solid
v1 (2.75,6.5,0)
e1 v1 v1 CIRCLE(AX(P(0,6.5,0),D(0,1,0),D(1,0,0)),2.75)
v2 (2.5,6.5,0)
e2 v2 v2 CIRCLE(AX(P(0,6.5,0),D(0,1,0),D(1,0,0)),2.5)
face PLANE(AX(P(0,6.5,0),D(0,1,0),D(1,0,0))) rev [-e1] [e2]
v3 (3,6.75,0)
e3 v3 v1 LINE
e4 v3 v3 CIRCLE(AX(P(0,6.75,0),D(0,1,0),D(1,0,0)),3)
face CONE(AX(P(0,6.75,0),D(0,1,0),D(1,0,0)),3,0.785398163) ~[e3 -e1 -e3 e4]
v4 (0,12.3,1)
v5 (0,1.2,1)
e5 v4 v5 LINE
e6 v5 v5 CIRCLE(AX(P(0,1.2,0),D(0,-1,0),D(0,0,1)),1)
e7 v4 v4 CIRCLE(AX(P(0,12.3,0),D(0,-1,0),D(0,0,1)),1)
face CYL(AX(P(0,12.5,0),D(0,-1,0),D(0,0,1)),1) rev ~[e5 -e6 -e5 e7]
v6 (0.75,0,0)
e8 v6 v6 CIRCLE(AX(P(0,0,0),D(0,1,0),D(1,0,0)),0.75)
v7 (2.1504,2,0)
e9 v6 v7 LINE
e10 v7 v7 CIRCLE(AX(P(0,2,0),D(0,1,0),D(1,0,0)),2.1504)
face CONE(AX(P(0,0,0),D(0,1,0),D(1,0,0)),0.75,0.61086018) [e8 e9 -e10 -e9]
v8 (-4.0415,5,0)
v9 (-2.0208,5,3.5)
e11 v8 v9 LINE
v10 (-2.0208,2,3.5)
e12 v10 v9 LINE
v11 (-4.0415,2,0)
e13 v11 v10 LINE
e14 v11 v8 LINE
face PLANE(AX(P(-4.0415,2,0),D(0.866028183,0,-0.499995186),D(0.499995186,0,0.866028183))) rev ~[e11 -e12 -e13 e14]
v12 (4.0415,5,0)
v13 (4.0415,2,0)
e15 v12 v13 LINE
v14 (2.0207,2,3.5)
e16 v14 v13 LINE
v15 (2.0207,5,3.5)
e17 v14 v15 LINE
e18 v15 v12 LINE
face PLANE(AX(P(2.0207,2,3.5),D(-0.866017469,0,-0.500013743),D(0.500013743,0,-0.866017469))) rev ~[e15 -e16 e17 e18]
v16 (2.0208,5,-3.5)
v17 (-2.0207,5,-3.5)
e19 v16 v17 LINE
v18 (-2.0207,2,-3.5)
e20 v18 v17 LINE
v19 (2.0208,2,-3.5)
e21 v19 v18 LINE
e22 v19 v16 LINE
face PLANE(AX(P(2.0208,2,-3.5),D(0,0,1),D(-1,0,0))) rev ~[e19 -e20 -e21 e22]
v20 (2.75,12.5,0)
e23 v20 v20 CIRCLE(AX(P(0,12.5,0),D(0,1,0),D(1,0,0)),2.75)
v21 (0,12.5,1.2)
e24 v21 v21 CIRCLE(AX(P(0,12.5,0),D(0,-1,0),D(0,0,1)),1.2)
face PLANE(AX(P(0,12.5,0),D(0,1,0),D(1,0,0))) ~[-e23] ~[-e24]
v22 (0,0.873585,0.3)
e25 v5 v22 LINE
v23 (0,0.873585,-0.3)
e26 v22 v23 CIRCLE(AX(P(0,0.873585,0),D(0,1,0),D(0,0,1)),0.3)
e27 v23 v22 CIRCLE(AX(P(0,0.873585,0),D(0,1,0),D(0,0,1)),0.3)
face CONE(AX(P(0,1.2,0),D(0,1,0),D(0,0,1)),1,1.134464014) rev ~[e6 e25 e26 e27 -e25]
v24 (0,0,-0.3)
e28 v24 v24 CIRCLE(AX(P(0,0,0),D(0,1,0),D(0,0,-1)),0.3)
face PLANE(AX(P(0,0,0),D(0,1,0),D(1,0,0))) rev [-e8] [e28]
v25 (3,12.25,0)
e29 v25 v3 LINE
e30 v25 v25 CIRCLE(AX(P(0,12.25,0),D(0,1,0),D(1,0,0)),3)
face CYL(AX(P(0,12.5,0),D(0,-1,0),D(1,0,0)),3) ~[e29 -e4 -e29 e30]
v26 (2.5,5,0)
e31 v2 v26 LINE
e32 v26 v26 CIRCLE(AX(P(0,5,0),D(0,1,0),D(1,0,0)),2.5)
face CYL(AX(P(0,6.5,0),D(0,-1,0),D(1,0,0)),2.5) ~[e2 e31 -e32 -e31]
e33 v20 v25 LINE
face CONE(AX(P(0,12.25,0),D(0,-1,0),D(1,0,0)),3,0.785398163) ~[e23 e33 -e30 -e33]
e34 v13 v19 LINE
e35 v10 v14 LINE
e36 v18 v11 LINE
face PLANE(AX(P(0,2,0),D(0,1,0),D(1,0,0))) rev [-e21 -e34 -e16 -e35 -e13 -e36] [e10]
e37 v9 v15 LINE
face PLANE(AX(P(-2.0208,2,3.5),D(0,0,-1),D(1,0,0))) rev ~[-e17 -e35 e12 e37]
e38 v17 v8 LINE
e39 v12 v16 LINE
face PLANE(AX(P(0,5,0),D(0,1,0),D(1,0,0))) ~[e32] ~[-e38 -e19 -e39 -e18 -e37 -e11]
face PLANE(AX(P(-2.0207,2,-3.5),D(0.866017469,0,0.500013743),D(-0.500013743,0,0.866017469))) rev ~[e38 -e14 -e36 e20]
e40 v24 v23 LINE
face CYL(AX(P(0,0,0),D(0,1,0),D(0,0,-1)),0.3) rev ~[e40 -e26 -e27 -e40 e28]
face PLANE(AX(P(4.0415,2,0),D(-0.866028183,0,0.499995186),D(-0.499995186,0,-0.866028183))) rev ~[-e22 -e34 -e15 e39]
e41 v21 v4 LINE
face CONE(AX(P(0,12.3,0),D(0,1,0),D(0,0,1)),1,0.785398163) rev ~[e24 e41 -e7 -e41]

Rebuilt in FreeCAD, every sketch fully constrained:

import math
import FreeCAD as App
import Part
import Sketcher
Q = App.Units.Quantity


def edges_at(feature, points):
    """Names of the edges that pass closest to the given points."""
    edges = feature.Shape.Edges
    near = lambda p: min(range(len(edges)), key=lambda i: edges[i].distToShape(Part.Vertex(*p))[0])
    return sorted({f"Edge{near(p) + 1}" for p in points})

doc = App.newDocument("Part")
body = doc.addObject("PartDesign::Body", "Body")

sketch1 = body.newObject("Sketcher::SketchObject", "Sketch")
sketch1.AttachmentSupport = (doc.getObject("XY_Plane"), [""])
sketch1.MapMode = "FlatFace"
sketch1.addGeometry([
    Part.LineSegment(App.Vector(0, 12.5, 0), App.Vector(0, 0, 0)),
    Part.LineSegment(App.Vector(0, 0, 0), App.Vector(0.75, 0, 0)),
    Part.LineSegment(App.Vector(0.75, 0, 0), App.Vector(2.1504, 2, 0)),
    Part.LineSegment(App.Vector(2.1504, 2, 0), App.Vector(4.0415, 2, 0)),
    Part.LineSegment(App.Vector(4.0415, 2, 0), App.Vector(4.0415, 5, 0)),
    Part.LineSegment(App.Vector(4.0415, 5, 0), App.Vector(2.5, 5, 0)),
    Part.LineSegment(App.Vector(2.5, 5, 0), App.Vector(2.5, 6.5, 0)),
    Part.LineSegment(App.Vector(2.5, 6.5, 0), App.Vector(3, 6.5, 0)),
    Part.LineSegment(App.Vector(3, 6.5, 0), App.Vector(3, 12.5, 0)),
    Part.LineSegment(App.Vector(3, 12.5, 0), App.Vector(0, 12.5, 0)),
], False)
sketch1.addConstraint([
    Sketcher.Constraint("Coincident", 0, 2, 1, 1),
    Sketcher.Constraint("Coincident", 1, 2, 2, 1),
    Sketcher.Constraint("Coincident", 2, 2, 3, 1),
    Sketcher.Constraint("Coincident", 3, 2, 4, 1),
    Sketcher.Constraint("Coincident", 4, 2, 5, 1),
    Sketcher.Constraint("Coincident", 5, 2, 6, 1),
    Sketcher.Constraint("Coincident", 6, 2, 7, 1),
    Sketcher.Constraint("Coincident", 7, 2, 8, 1),
    Sketcher.Constraint("Coincident", 8, 2, 9, 1),
    Sketcher.Constraint("Coincident", 9, 2, 0, 1),
    Sketcher.Constraint("Vertical", 0),
    Sketcher.Constraint("Horizontal", 1),
    Sketcher.Constraint("Horizontal", 3),
    Sketcher.Constraint("Vertical", 4),
    Sketcher.Constraint("Horizontal", 5),
    Sketcher.Constraint("Vertical", 6),
    Sketcher.Constraint("Horizontal", 7),
    Sketcher.Constraint("Vertical", 8),
    Sketcher.Constraint("Horizontal", 9),
    Sketcher.Constraint("Coincident", 0, 2, -1, 1),
    Sketcher.Constraint("Equal", 9, 4),
    Sketcher.Constraint("DistanceY", 8, 1, 8, 2, Q("6 mm")),
    Sketcher.Constraint("DistanceY", 0, 2, 0, 1, Q("12.5 mm")),
    Sketcher.Constraint("DistanceY", 6, 1, 6, 2, Q("1.5 mm")),
    Sketcher.Constraint("DistanceY", 2, 2, 8, 2, Q("10.5 mm")),
    Sketcher.Constraint("Angle", 2, Q("55.0003 deg")),
    Sketcher.Constraint("DistanceX", 7, 1, 7, 2, Q("0.5 mm")),
    Sketcher.Constraint("DistanceX", 1, 1, 1, 2, Q("0.75 mm")),
    Sketcher.Constraint("DistanceX", 3, 1, 3, 2, Q("1.891 mm")),
])
revolution = body.newObject("PartDesign::Revolution", "Revolution")
revolution.Profile = sketch1
revolution.ReferenceAxis = (sketch1, ["V_Axis"])
revolution.Angle = 360
doc.recompute()

chamfer = body.newObject("PartDesign::Chamfer", "Chamfer")
chamfer.Base = (revolution, edges_at(revolution, [(-3, 12.5, 0), (-3, 6.5, 0)]))
chamfer.Size = 0.25

sketch2 = body.newObject("Sketcher::SketchObject", "Sketch001")
sketch2.AttachmentSupport = (doc.getObject("XZ_Plane"), [""])
sketch2.MapMode = "FlatFace"
sketch2.AttachmentOffset = App.Placement(App.Vector(0, 0, -12.5), App.Rotation())
sketch2.addGeometry(Part.Circle(App.Vector(0, 0, 0), App.Vector(0, 0, 1), 1), False)
sketch2.addConstraint([
    Sketcher.Constraint("Coincident", 0, 3, -1, 1),
    Sketcher.Constraint("Diameter", 0, Q("2 mm")),
])
doc.recompute()
hole = body.newObject("PartDesign::Hole", "Hole")
hole.Profile = sketch2
hole.ThreadType = "None"
hole.Diameter = 2
hole.DepthType = "Dimension"
hole.Depth = 11.3
hole.DrillPoint = "Angled"
hole.DrillPointAngle = 130
hole.Reversed = True
doc.recompute()

chamfer2 = body.newObject("PartDesign::Chamfer", "Chamfer001")
chamfer2.Base = (hole, edges_at(hole, [(0, 12.5, -1)]))
chamfer2.Size = 0.2

sketch3 = body.newObject("Sketcher::SketchObject", "Sketch002")
sketch3.AttachmentSupport = (doc.getObject("XZ_Plane"), [""])
sketch3.MapMode = "FlatFace"
sketch3.addGeometry(Part.Circle(App.Vector(0, 0, 0), App.Vector(0, 0, 1), 0.3), False)
sketch3.addConstraint([
    Sketcher.Constraint("Coincident", 0, 3, -1, 1),
    Sketcher.Constraint("Diameter", 0, Q("0.6 mm")),
])
doc.recompute()
hole2 = body.newObject("PartDesign::Hole", "Hole001")
hole2.Profile = sketch3
hole2.ThreadType = "None"
hole2.Diameter = 0.6
hole2.DepthType = "Dimension"
hole2.Depth = 1.2
hole2.DrillPoint = "Flat"

sketch4 = body.newObject("Sketcher::SketchObject", "Sketch003")
sketch4.AttachmentSupport = (doc.getObject("XZ_Plane"), [""])
sketch4.MapMode = "FlatFace"
sketch4.AttachmentOffset = App.Placement(App.Vector(0, 0, -2), App.Rotation())
sketch4.addGeometry([
    Part.LineSegment(App.Vector(2.0207, 3.5, 0), App.Vector(4.0415, 0, 0)),
    Part.ArcOfCircle(Part.Circle(App.Vector(0, 0, 0), App.Vector(0, 0, 1), 4.0415), math.radians(0), math.radians(60.000319)),
    Part.ArcOfCircle(Part.Circle(App.Vector(0, 0, 0), App.Vector(0, 0, 1), 4.0415), math.radians(-59.999091), math.radians(0)),
    Part.LineSegment(App.Vector(4.0415, 0, 0), App.Vector(2.0208, -3.5, 0)),
    Part.LineSegment(App.Vector(-2.0208, 3.5, 0), App.Vector(2.0207, 3.5, 0)),
    Part.ArcOfCircle(Part.Circle(App.Vector(0, 0, 0), App.Vector(0, 0, 1), 4.0415), math.radians(60.000319), math.radians(120.000909)),
    Part.ArcOfCircle(Part.Circle(App.Vector(0, 0, 0), App.Vector(0, 0, 1), 4.0415), math.radians(-119.999681), math.radians(-59.999091)),
    Part.LineSegment(App.Vector(-2.0207, -3.5, 0), App.Vector(2.0208, -3.5, 0)),
    Part.LineSegment(App.Vector(-4.0415, 0, 0), App.Vector(-2.0208, 3.5, 0)),
    Part.ArcOfCircle(Part.Circle(App.Vector(0, 0, 0), App.Vector(0, 0, 1), 4.0415), math.radians(120.000909), math.radians(180)),
    Part.ArcOfCircle(Part.Circle(App.Vector(0, 0, 0), App.Vector(0, 0, 1), 4.0415), math.radians(180), math.radians(240.000319)),
    Part.LineSegment(App.Vector(-4.0415, 0, 0), App.Vector(-2.0207, -3.5, 0)),
], False)
sketch4.addConstraint([
    Sketcher.Constraint("Coincident", 0, 1, 1, 2),
    Sketcher.Constraint("Coincident", 1, 1, 0, 2),
    Sketcher.Constraint("Coincident", 2, 1, 3, 2),
    Sketcher.Constraint("Coincident", 3, 1, 2, 2),
    Sketcher.Constraint("Coincident", 4, 1, 5, 2),
    Sketcher.Constraint("Coincident", 5, 1, 4, 2),
    Sketcher.Constraint("Coincident", 6, 1, 7, 1),
    Sketcher.Constraint("Coincident", 7, 2, 6, 2),
    Sketcher.Constraint("Coincident", 8, 1, 9, 2),
    Sketcher.Constraint("Coincident", 9, 1, 8, 2),
    Sketcher.Constraint("Coincident", 10, 1, 11, 1),
    Sketcher.Constraint("Coincident", 11, 2, 10, 2),
    Sketcher.Constraint("Horizontal", 4),
    Sketcher.Constraint("Horizontal", 7),
    Sketcher.Constraint("Coincident", 1, 3, -1, 1),
    Sketcher.Constraint("Coincident", 2, 3, -1, 1),
    Sketcher.Constraint("Coincident", 5, 3, -1, 1),
    Sketcher.Constraint("Coincident", 6, 3, -1, 1),
    Sketcher.Constraint("Coincident", 9, 3, -1, 1),
    Sketcher.Constraint("Coincident", 10, 3, -1, 1),
    Sketcher.Constraint("Coincident", 3, 1, 1, 1),
    Sketcher.Constraint("Coincident", 5, 1, 0, 1),
    Sketcher.Constraint("Coincident", 7, 2, 2, 1),
    Sketcher.Constraint("Coincident", 9, 1, 4, 1),
    Sketcher.Constraint("Coincident", 10, 1, 8, 1),
    Sketcher.Constraint("PointOnObject", 1, 1, -1),
    Sketcher.Constraint("PointOnObject", 8, 1, -1),
    Sketcher.Constraint("Parallel", 3, 8),
    Sketcher.Constraint("Parallel", 0, 11),
    Sketcher.Constraint("Angle", 0, Q("-59.999 deg")),
    Sketcher.Constraint("DistanceY", -1, 1, 0, 1, Q("3.5 mm")),
])
pocket1 = body.newObject("PartDesign::Pocket", "Pocket")
pocket1.Profile = sketch4
pocket1.Length = 3

doc.recompute()
